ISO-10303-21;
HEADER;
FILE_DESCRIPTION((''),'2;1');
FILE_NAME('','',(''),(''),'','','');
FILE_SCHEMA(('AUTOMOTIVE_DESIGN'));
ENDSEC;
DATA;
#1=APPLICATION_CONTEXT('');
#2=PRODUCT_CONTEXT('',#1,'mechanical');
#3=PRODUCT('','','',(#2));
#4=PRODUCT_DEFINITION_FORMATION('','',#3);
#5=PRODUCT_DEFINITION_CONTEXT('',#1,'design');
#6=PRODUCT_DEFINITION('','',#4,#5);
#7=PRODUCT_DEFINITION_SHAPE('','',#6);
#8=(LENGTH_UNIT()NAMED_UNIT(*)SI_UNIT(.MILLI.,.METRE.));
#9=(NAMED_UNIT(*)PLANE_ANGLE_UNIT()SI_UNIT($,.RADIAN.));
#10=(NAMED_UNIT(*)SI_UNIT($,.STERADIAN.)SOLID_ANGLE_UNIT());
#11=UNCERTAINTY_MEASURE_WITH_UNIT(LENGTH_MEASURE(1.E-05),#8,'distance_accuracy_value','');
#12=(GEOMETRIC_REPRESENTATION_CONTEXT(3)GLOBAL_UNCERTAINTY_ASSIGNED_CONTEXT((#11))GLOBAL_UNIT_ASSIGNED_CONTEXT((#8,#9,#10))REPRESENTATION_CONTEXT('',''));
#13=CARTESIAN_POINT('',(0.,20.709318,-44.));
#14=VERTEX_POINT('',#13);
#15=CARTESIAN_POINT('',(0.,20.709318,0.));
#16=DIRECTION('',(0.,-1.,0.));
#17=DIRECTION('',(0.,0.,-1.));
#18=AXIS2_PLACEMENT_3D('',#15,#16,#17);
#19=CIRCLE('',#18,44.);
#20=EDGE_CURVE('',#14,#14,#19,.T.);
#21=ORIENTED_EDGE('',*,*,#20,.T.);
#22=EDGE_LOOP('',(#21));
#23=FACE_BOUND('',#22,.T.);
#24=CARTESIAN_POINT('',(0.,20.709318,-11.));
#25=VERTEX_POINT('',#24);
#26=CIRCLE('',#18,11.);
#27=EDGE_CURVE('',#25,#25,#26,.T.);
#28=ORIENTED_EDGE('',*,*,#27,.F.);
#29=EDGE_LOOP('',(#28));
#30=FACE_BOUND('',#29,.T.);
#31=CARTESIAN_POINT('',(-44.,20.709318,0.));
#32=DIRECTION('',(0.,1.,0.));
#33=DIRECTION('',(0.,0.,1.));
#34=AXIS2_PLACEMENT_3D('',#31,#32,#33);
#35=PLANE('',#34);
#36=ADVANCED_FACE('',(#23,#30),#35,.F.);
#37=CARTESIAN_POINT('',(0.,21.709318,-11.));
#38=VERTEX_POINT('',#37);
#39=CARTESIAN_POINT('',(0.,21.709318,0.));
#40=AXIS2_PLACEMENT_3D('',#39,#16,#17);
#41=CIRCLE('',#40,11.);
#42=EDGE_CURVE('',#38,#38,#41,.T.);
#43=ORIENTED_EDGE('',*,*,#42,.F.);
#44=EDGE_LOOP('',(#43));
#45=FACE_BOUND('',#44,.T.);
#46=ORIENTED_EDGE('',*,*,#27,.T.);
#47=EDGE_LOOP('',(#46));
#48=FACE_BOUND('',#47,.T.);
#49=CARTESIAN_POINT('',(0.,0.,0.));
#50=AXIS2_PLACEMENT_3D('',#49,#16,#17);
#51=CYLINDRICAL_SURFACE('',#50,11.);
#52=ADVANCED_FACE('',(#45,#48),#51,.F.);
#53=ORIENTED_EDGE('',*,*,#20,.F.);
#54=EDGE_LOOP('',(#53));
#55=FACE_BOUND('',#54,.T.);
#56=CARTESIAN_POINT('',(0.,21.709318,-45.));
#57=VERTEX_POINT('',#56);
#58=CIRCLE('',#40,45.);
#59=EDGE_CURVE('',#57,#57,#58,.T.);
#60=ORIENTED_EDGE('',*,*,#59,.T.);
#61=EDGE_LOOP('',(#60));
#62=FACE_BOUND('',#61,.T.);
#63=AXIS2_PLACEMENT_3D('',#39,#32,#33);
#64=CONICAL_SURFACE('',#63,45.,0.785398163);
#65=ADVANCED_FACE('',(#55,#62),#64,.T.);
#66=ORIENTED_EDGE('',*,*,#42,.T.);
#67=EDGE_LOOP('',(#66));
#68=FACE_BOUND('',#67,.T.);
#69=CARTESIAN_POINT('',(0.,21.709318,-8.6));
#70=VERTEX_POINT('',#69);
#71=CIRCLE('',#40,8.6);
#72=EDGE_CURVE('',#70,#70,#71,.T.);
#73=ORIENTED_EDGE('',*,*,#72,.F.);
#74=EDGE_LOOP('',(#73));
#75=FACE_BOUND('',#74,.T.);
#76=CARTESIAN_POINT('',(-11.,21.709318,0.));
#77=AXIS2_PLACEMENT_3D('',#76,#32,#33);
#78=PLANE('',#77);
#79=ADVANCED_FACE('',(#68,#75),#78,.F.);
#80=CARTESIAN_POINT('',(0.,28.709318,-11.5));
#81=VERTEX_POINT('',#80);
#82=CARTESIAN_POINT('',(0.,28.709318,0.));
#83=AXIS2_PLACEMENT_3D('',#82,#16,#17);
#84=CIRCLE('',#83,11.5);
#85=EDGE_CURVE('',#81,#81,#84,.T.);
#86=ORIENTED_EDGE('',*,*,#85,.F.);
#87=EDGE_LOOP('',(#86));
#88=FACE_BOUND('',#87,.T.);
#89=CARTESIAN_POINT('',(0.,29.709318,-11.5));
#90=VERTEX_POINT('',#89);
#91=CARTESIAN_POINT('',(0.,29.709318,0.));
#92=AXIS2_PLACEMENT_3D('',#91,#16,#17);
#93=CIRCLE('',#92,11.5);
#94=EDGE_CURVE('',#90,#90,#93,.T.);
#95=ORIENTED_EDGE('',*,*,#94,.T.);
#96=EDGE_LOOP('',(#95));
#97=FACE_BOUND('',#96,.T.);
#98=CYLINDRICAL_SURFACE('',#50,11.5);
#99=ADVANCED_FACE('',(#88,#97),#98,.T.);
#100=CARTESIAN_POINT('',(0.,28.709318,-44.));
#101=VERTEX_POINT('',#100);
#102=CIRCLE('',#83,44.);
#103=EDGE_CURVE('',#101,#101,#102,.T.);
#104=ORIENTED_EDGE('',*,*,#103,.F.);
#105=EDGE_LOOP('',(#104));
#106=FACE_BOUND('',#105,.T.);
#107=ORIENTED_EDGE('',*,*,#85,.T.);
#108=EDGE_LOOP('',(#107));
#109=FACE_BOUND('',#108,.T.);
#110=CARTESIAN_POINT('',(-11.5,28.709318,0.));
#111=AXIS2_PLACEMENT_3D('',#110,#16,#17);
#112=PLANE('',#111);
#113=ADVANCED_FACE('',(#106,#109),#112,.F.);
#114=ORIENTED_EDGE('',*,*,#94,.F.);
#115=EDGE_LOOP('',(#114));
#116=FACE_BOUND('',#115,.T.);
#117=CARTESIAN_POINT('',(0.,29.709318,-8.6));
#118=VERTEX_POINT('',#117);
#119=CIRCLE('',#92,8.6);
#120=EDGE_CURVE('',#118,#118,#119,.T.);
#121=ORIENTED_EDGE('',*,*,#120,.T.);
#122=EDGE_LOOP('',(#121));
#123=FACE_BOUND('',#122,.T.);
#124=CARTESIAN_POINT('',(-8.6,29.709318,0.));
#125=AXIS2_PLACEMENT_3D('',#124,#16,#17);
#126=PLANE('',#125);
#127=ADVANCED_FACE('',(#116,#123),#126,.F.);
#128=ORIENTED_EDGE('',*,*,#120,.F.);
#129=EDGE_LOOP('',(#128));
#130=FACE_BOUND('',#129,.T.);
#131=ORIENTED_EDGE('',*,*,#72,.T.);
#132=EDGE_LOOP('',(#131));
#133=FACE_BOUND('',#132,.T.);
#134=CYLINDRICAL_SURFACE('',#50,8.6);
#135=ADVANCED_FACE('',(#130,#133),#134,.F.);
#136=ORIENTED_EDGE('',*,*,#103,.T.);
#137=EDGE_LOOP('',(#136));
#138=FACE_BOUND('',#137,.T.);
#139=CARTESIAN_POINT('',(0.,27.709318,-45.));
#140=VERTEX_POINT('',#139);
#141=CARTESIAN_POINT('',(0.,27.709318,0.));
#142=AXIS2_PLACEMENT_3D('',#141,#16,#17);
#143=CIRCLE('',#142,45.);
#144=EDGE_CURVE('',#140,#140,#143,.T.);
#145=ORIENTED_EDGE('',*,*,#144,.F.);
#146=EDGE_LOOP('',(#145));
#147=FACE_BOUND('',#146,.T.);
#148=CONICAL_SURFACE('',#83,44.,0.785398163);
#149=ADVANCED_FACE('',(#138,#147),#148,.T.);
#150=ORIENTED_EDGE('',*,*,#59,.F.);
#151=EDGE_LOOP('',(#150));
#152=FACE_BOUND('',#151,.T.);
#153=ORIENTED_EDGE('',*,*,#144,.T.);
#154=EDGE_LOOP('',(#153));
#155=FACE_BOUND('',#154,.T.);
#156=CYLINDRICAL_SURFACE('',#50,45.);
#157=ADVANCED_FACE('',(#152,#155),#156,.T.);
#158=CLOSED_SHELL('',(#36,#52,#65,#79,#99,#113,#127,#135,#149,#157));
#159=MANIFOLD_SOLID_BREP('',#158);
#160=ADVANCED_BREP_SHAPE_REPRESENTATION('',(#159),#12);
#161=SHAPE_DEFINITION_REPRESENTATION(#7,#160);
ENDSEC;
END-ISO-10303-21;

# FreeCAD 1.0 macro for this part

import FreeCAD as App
import Part
import Sketcher


def add_polygon(sketch, points):
    """Adds a closed chain of lines whose ends are joined by coincident constraints."""
    first, n = sketch.GeometryCount, len(points)
    for a, b in zip(points, points[1:] + points[:1]):
        sketch.addGeometry(Part.LineSegment(App.Vector(*a, 0), App.Vector(*b, 0)), False)
    for i in range(n):
        sketch.addConstraint(Sketcher.Constraint("Coincident", first + i, 2, first + (i + 1) % n, 1))

doc = App.newDocument("Part")
body = doc.addObject("PartDesign::Body", "Body")

sketch1 = doc.addObject("Sketcher::SketchObject", "Sketch")
body.addObject(sketch1)
sketch1.AttachmentSupport = (doc.XY_Plane, [""])
sketch1.MapMode = "FlatFace"
add_polygon(sketch1, [(-8.6, 29.7), (-11.5, 29.7), (-11.5, 28.7), (-44, 28.7), (-45, 27.7), (-45, 21.7), (-44, 20.7), (-11, 20.7), (-11, 21.7), (-8.6, 21.7)])
sketch1.addConstraint([
    Sketcher.Constraint("Horizontal", 0),
    Sketcher.Constraint("Vertical", 1),
    Sketcher.Constraint("Horizontal", 2),
    Sketcher.Constraint("Vertical", 4),
    Sketcher.Constraint("Horizontal", 6),
    Sketcher.Constraint("Vertical", 7),
    Sketcher.Constraint("Horizontal", 8),
    Sketcher.Constraint("Vertical", 9),
    Sketcher.Constraint("Perpendicular", 3, 5),
    Sketcher.Constraint("Horizontal", 4, 2, 7, 2),
    Sketcher.Constraint("Vertical", 2, 2, 5, 2),
    Sketcher.Constraint("Equal", 1, 7),
    Sketcher.Constraint("Equal", 3, 5),
    Sketcher.Constraint("DistanceX", 6, 1, 6, 2, 33.0),
    Sketcher.Constraint("DistanceY", 1, 2, 1, 1, 1.0),
    Sketcher.Constraint("DistanceY", 4, 2, 4, 1, 6.0),
    Sketcher.Constraint("DistanceX", 0, 2, 0, 1, 2.9),
    Sketcher.Constraint("DistanceX", 2, 2, 2, 1, 32.5),
    Sketcher.Constraint("DistanceX", 2, 2, -1, 1, 44.0),
    Sketcher.Constraint("DistanceY", -1, 1, 0, 2, 29.709318),
])
revolution = doc.addObject("PartDesign::Revolution", "Revolution")
body.addObject(revolution)
revolution.Profile = sketch1
revolution.ReferenceAxis = (sketch1, ["V_Axis"])
revolution.Angle = 360

doc.recompute()
